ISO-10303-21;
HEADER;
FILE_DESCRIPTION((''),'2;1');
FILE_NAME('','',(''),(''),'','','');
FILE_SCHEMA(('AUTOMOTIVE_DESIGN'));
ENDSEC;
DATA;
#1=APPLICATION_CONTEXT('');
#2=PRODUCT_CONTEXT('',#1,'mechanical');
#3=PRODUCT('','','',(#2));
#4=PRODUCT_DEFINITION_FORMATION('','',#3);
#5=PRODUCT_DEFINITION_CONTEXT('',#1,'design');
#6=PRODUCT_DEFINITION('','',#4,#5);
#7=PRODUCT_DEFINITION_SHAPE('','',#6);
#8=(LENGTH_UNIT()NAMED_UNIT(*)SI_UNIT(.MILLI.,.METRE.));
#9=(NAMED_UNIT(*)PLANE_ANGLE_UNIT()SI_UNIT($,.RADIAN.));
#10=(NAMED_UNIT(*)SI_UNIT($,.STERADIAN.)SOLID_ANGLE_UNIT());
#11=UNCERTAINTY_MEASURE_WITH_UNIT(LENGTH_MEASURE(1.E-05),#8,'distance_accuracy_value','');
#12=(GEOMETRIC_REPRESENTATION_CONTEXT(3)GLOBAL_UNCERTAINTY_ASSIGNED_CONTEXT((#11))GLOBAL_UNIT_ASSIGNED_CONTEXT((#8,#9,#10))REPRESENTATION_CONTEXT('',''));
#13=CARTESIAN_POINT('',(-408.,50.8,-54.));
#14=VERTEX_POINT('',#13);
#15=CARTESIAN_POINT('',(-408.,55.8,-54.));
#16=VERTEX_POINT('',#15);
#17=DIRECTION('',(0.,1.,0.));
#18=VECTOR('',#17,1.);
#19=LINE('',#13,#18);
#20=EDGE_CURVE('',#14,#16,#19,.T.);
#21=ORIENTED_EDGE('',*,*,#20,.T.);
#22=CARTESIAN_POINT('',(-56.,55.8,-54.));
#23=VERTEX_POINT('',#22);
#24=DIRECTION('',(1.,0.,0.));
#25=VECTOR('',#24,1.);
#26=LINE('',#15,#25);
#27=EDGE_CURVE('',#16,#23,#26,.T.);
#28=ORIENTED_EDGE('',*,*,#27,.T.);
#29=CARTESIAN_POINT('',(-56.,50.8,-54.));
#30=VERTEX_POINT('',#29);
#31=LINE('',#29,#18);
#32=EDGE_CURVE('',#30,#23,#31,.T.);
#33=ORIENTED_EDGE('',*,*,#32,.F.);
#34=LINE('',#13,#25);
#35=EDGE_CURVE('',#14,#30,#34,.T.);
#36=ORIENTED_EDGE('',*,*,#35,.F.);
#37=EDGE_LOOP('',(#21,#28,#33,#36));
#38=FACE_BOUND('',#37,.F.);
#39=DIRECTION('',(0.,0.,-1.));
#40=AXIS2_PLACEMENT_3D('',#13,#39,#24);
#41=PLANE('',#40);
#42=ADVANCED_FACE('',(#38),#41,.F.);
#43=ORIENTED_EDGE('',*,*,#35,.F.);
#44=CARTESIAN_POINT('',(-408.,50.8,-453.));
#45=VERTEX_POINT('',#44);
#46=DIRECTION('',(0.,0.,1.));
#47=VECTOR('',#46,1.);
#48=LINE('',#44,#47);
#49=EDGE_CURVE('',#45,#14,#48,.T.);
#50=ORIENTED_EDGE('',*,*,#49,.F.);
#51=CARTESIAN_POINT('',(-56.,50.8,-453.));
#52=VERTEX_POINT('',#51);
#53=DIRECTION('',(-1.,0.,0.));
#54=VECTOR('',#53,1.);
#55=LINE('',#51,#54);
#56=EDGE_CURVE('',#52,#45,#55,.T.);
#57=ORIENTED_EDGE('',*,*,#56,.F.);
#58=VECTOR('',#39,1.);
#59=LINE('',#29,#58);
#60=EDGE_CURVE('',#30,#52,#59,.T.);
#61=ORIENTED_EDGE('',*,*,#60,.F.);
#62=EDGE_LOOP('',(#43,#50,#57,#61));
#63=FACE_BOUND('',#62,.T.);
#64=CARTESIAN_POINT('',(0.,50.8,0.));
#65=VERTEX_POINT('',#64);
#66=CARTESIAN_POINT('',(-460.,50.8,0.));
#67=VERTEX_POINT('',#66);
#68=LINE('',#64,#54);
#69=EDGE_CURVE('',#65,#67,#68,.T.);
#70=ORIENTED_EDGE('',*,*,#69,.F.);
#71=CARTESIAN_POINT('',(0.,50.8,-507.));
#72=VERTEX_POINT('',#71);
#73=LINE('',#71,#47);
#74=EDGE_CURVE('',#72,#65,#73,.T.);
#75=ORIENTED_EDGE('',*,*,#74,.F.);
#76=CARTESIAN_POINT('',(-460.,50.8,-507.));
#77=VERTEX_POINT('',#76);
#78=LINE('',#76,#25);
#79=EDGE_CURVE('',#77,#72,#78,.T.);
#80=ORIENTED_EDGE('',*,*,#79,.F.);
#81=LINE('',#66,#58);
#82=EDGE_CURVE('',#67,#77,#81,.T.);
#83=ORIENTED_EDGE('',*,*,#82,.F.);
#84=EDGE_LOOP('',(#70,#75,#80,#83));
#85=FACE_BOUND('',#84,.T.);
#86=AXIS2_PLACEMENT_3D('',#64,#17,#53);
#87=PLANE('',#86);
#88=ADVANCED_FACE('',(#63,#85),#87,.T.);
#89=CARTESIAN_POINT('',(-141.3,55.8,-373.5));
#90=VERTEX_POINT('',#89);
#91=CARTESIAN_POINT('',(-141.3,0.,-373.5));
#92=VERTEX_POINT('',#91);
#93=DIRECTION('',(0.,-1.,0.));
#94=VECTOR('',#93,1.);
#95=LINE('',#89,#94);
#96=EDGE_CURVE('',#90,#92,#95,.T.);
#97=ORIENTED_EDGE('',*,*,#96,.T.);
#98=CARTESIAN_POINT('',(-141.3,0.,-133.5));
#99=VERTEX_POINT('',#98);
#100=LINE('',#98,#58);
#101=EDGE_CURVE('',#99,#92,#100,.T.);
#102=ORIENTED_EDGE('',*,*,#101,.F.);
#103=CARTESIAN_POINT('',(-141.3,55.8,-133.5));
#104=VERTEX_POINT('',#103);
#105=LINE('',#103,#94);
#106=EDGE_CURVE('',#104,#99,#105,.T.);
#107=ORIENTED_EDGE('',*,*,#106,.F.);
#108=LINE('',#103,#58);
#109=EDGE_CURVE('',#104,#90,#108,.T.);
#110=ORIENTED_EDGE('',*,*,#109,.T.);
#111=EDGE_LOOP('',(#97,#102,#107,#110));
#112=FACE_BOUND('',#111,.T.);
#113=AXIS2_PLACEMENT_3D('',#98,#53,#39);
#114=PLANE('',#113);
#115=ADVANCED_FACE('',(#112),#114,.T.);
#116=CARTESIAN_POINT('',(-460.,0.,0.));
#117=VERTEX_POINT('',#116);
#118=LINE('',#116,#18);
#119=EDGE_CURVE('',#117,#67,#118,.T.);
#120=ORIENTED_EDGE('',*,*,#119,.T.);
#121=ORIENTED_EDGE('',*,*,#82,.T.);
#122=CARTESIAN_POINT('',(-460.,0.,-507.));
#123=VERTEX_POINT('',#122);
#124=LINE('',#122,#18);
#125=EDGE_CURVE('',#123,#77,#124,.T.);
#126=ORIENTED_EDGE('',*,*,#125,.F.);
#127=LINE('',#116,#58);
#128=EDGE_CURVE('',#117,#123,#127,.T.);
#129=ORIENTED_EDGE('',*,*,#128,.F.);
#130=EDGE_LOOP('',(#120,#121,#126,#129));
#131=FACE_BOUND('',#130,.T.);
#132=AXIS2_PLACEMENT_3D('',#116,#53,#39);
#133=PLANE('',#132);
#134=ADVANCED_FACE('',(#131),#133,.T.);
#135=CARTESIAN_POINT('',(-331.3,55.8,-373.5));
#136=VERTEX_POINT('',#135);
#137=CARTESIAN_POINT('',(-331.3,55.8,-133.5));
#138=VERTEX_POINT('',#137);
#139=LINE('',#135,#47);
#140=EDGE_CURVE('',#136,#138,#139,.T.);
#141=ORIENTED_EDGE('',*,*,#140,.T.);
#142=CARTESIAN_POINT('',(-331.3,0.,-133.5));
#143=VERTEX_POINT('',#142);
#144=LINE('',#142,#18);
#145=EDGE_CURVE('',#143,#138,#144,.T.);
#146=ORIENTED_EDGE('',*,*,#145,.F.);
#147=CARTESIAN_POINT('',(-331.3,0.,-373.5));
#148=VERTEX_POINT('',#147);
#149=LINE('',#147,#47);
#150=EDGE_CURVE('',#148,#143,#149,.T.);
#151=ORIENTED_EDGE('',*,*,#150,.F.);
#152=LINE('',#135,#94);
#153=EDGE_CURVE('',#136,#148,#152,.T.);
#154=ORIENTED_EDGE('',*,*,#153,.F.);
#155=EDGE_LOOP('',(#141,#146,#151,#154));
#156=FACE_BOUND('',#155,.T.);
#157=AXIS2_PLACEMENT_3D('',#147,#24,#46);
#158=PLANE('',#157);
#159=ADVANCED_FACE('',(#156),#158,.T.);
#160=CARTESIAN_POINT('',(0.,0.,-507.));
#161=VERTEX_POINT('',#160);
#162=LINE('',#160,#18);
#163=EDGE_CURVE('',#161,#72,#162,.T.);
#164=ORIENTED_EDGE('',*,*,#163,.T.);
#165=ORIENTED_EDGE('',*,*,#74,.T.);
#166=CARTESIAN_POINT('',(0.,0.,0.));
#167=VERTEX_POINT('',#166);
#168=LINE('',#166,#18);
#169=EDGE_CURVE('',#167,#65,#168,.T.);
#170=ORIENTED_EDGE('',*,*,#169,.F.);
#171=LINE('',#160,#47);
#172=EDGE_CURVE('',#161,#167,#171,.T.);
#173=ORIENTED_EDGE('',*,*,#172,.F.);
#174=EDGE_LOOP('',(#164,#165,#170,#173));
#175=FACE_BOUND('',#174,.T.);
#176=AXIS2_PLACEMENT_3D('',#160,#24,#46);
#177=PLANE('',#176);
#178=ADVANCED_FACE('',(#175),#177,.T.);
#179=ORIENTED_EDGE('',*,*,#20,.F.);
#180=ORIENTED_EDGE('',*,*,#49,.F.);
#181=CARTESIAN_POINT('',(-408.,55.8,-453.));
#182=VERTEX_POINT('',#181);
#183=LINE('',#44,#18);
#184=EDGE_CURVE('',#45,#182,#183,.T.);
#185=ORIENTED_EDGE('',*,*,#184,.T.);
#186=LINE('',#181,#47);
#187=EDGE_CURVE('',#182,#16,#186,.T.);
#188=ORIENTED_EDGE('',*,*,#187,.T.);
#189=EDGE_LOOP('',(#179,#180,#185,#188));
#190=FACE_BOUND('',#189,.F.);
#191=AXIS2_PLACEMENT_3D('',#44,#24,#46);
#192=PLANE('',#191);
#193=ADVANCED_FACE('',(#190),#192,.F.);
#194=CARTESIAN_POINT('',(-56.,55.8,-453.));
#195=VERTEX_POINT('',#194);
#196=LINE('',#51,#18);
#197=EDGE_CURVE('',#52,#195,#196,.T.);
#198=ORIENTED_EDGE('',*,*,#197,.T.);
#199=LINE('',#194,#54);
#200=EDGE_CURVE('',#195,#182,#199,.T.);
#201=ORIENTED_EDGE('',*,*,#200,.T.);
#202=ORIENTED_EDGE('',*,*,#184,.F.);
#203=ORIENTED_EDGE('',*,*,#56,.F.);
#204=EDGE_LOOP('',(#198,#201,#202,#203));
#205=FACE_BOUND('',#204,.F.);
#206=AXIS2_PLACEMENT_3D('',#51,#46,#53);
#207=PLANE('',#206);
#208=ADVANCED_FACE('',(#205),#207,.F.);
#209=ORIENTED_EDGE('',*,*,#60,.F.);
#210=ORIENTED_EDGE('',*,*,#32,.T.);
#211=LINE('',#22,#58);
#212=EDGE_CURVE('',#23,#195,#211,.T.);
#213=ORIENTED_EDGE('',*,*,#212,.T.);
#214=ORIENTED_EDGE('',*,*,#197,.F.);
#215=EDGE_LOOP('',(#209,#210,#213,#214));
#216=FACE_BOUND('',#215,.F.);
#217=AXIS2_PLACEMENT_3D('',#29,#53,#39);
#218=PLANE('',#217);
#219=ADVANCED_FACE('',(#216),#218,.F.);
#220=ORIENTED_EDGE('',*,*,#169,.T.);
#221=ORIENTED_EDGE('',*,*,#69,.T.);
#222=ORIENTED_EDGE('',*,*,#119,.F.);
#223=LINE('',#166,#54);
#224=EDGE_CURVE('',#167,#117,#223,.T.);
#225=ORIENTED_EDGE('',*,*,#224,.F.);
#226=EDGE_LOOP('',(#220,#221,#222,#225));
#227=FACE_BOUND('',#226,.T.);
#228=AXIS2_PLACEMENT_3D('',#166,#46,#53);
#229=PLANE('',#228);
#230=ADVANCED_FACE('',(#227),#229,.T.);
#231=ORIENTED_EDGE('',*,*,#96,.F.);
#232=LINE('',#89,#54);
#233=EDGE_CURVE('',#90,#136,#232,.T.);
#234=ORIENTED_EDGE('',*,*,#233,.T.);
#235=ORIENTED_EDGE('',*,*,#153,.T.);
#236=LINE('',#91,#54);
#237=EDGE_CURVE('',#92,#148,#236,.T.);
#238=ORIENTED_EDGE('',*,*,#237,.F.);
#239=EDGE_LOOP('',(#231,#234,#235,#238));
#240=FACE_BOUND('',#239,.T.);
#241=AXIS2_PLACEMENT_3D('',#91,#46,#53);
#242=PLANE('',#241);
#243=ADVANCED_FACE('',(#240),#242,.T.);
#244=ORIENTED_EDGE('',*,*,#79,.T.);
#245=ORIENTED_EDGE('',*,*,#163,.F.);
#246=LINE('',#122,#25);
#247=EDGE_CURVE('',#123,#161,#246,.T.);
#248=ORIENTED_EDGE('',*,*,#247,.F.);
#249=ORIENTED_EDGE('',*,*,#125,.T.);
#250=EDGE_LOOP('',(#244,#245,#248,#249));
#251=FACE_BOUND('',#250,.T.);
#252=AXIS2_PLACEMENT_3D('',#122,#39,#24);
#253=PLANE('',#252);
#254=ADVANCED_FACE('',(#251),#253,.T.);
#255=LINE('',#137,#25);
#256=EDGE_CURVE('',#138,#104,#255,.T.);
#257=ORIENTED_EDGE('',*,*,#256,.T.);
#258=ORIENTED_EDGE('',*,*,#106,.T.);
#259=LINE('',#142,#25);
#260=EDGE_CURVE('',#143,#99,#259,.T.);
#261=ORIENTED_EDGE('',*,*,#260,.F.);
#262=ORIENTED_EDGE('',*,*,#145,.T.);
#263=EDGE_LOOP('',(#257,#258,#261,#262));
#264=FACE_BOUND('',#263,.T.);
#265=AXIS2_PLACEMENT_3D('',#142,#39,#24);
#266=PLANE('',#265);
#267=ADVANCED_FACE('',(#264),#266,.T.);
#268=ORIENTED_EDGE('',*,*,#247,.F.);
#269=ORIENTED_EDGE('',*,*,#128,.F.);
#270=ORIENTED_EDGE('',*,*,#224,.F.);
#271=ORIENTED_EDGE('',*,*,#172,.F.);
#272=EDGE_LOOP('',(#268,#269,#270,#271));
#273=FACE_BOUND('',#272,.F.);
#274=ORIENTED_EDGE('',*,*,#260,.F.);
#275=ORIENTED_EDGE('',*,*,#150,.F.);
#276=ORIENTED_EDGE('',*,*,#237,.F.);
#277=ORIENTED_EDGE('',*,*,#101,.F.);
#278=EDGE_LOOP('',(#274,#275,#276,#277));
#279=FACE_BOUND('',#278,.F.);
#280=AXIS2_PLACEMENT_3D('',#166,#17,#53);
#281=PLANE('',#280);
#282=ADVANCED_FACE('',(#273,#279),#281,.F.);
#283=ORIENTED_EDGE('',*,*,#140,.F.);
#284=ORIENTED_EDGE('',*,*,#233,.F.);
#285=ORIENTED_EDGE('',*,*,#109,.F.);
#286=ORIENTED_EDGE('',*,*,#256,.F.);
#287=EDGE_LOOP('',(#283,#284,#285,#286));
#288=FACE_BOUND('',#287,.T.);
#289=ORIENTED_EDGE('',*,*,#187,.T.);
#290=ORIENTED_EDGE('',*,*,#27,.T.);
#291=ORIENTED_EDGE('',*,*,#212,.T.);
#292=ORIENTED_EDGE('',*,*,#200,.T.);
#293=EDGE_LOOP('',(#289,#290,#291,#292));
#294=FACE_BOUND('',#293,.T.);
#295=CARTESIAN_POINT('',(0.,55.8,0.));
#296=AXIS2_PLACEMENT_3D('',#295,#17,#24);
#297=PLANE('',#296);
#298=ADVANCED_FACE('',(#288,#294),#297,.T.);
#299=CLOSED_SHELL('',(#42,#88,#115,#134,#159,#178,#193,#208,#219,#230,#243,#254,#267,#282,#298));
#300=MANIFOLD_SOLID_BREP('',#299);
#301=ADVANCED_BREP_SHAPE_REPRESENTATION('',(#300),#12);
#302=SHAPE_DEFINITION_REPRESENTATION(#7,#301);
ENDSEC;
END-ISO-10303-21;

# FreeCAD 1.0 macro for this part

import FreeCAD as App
import Part
import Sketcher
Q = App.Units.Quantity

doc = App.newDocument("Part")
params = doc.addObject("Spreadsheet::Sheet", "Params")
for row, (alias, value) in enumerate([
    ("sketch1_width", "460 mm"),
    ("sketch1_width2", "190 mm"),
    ("sketch1_height", "507 mm"),
    ("sketch1_height2", "240 mm"),
    ("pad1_length", "50.8 mm"),
    ("sketch2_width", "352 mm"),
    ("sketch2_height", "399 mm"),
    ("sketch2_width2", "190 mm"),
    ("sketch2_height2", "240 mm"),
    ("pad2_length", "5 mm"),
], start=1):
    params.set(f"A{row}", alias)
    params.set(f"B{row}", "=" + value)
    params.setAlias(f"B{row}", alias)

body = doc.addObject("PartDesign::Body", "Body")

sketch1 = body.newObject("Sketcher::SketchObject", "Sketch")
sketch1.AttachmentSupport = (doc.getObject("XZ_Plane"), [""])
sketch1.MapMode = "FlatFace"
sketch1.addGeometry(Part.LineSegment(App.Vector(-460, 0, 0), App.Vector(0, 0, 0)), False)
sketch1.addGeometry(Part.LineSegment(App.Vector(0, 0, 0), App.Vector(0, -507, 0)), False)
sketch1.addGeometry(Part.LineSegment(App.Vector(0, -507, 0), App.Vector(-460, -507, 0)), False)
sketch1.addGeometry(Part.LineSegment(App.Vector(-460, -507, 0), App.Vector(-460, 0, 0)), False)
sketch1.addGeometry(Part.LineSegment(App.Vector(-141.3, -133.5, 0), App.Vector(-331.3, -133.5, 0)), False)
sketch1.addGeometry(Part.LineSegment(App.Vector(-331.3, -133.5, 0), App.Vector(-331.3, -373.5, 0)), False)
sketch1.addGeometry(Part.LineSegment(App.Vector(-331.3, -373.5, 0), App.Vector(-141.3, -373.5, 0)), False)
sketch1.addGeometry(Part.LineSegment(App.Vector(-141.3, -373.5, 0), App.Vector(-141.3, -133.5, 0)), False)
sketch1.addConstraint(Sketcher.Constraint("Coincident", 0, 2, 1, 1))
sketch1.addConstraint(Sketcher.Constraint("Coincident", 1, 2, 2, 1))
sketch1.addConstraint(Sketcher.Constraint("Coincident", 2, 2, 3, 1))
sketch1.addConstraint(Sketcher.Constraint("Coincident", 3, 2, 0, 1))
sketch1.addConstraint(Sketcher.Constraint("Coincident", 4, 2, 5, 1))
sketch1.addConstraint(Sketcher.Constraint("Coincident", 5, 2, 6, 1))
sketch1.addConstraint(Sketcher.Constraint("Coincident", 6, 2, 7, 1))
sketch1.addConstraint(Sketcher.Constraint("Coincident", 7, 2, 4, 1))
sketch1.addConstraint(Sketcher.Constraint("Horizontal", 0))
sketch1.addConstraint(Sketcher.Constraint("Vertical", 1))
sketch1.addConstraint(Sketcher.Constraint("Horizontal", 2))
sketch1.addConstraint(Sketcher.Constraint("Vertical", 3))
sketch1.addConstraint(Sketcher.Constraint("Horizontal", 4))
sketch1.addConstraint(Sketcher.Constraint("Vertical", 5))
sketch1.addConstraint(Sketcher.Constraint("Horizontal", 6))
sketch1.addConstraint(Sketcher.Constraint("Vertical", 7))
sketch1.addConstraint(Sketcher.Constraint("Coincident", 0, 2, -1, 1))
sketch1.addConstraint(Sketcher.Constraint("DistanceX", 0, 1, 0, 2, Q("460 mm")))
sketch1.addConstraint(Sketcher.Constraint("DistanceX", 4, 2, 4, 1, Q("190 mm")))
sketch1.addConstraint(Sketcher.Constraint("DistanceY", 1, 2, 1, 1, Q("507 mm")))
sketch1.addConstraint(Sketcher.Constraint("DistanceY", 5, 2, 5, 1, Q("240 mm")))
sketch1.addConstraint(Sketcher.Constraint("DistanceY", 4, 2, -1, 1, Q("133.5 mm")))
sketch1.addConstraint(Sketcher.Constraint("DistanceX", 6, 2, -1, 1, Q("141.3 mm")))
sketch1.setExpression("Constraints[17]", "Params.sketch1_width")
sketch1.setExpression("Constraints[18]", "Params.sketch1_width2")
sketch1.setExpression("Constraints[19]", "Params.sketch1_height")
sketch1.setExpression("Constraints[20]", "Params.sketch1_height2")
pad1 = body.newObject("PartDesign::Pad", "Pad")
pad1.Profile = sketch1
pad1.setExpression("Length", "Params.pad1_length")
pad1.Reversed = True

sketch2 = body.newObject("Sketcher::SketchObject", "Sketch001")
sketch2.AttachmentSupport = (doc.getObject("XZ_Plane"), [""])
sketch2.MapMode = "FlatFace"
sketch2.AttachmentOffset = App.Placement(App.Vector(0, 0, -50.8), App.Rotation())
sketch2.addGeometry(Part.LineSegment(App.Vector(-408, -453, 0), App.Vector(-408, -54, 0)), False)
sketch2.addGeometry(Part.LineSegment(App.Vector(-408, -54, 0), App.Vector(-56, -54, 0)), False)
sketch2.addGeometry(Part.LineSegment(App.Vector(-56, -54, 0), App.Vector(-56, -453, 0)), False)
sketch2.addGeometry(Part.LineSegment(App.Vector(-56, -453, 0), App.Vector(-408, -453, 0)), False)
sketch2.addGeometry(Part.LineSegment(App.Vector(-141.3, -133.5, 0), App.Vector(-331.3, -133.5, 0)), False)
sketch2.addGeometry(Part.LineSegment(App.Vector(-331.3, -133.5, 0), App.Vector(-331.3, -373.5, 0)), False)
sketch2.addGeometry(Part.LineSegment(App.Vector(-331.3, -373.5, 0), App.Vector(-141.3, -373.5, 0)), False)
sketch2.addGeometry(Part.LineSegment(App.Vector(-141.3, -373.5, 0), App.Vector(-141.3, -133.5, 0)), False)
sketch2.addConstraint(Sketcher.Constraint("Coincident", 0, 2, 1, 1))
sketch2.addConstraint(Sketcher.Constraint("Coincident", 1, 2, 2, 1))
sketch2.addConstraint(Sketcher.Constraint("Coincident", 2, 2, 3, 1))
sketch2.addConstraint(Sketcher.Constraint("Coincident", 3, 2, 0, 1))
sketch2.addConstraint(Sketcher.Constraint("Coincident", 4, 2, 5, 1))
sketch2.addConstraint(Sketcher.Constraint("Coincident", 5, 2, 6, 1))
sketch2.addConstraint(Sketcher.Constraint("Coincident", 6, 2, 7, 1))
sketch2.addConstraint(Sketcher.Constraint("Coincident", 7, 2, 4, 1))
sketch2.addConstraint(Sketcher.Constraint("Vertical", 0))
sketch2.addConstraint(Sketcher.Constraint("Horizontal", 1))
sketch2.addConstraint(Sketcher.Constraint("Vertical", 2))
sketch2.addConstraint(Sketcher.Constraint("Horizontal", 3))
sketch2.addConstraint(Sketcher.Constraint("Horizontal", 4))
sketch2.addConstraint(Sketcher.Constraint("Vertical", 5))
sketch2.addConstraint(Sketcher.Constraint("Horizontal", 6))
sketch2.addConstraint(Sketcher.Constraint("Vertical", 7))
sketch2.addConstraint(Sketcher.Constraint("DistanceX", 1, 1, 1, 2, Q("352 mm")))
sketch2.addConstraint(Sketcher.Constraint("DistanceY", 0, 1, 0, 2, Q("399 mm")))
sketch2.addConstraint(Sketcher.Constraint("DistanceY", 0, 2, -1, 1, Q("54 mm")))
sketch2.addConstraint(Sketcher.Constraint("DistanceX", 4, 2, 4, 1, Q("190 mm")))
sketch2.addConstraint(Sketcher.Constraint("DistanceY", 5, 2, 5, 1, Q("240 mm")))
sketch2.addConstraint(Sketcher.Constraint("DistanceX", 0, 2, -1, 1, Q("408 mm")))
sketch2.addConstraint(Sketcher.Constraint("DistanceX", 4, 2, -1, 1, Q("331.3 mm")))
sketch2.addConstraint(Sketcher.Constraint("DistanceY", 4, 2, -1, 1, Q("133.5 mm")))
sketch2.setExpression("Constraints[16]", "Params.sketch2_width")
sketch2.setExpression("Constraints[17]", "Params.sketch2_height")
sketch2.setExpression("Constraints[19]", "Params.sketch2_width2")
sketch2.setExpression("Constraints[20]", "Params.sketch2_height2")
pad2 = body.newObject("PartDesign::Pad", "Pad001")
pad2.Profile = sketch2
pad2.setExpression("Length", "Params.pad2_length")
pad2.Reversed = True

doc.recompute()
